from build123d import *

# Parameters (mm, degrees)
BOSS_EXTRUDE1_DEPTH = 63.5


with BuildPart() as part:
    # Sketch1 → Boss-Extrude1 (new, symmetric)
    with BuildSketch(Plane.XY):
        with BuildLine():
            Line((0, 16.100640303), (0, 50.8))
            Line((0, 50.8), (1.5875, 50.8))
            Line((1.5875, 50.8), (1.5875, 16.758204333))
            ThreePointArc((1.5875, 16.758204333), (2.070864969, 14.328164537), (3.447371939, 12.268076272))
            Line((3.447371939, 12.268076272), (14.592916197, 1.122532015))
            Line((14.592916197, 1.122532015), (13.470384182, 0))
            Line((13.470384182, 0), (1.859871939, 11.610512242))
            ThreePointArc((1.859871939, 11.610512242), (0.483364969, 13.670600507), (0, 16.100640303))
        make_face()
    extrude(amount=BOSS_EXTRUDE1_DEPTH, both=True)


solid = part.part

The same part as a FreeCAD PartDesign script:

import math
import FreeCAD as App
import Part
import Sketcher

V = App.Vector
Q = App.Units.Quantity

doc = App.newDocument("Part")
body = doc.addObject("PartDesign::Body", "Body")

# Sketch on XY plane
sketch1 = body.newObject("Sketcher::SketchObject", "Sketch")
sketch1.AttachmentSupport = (doc.getObject("XY_Plane"), [""])
sketch1.MapMode = "FlatFace"
sketch1.addGeometry(Part.LineSegment(V(0, 50.8, 0), V(0, 16.1, 0)), False)
sketch1.addGeometry(Part.ArcOfCircle(Part.Circle(V(6.4, 16.1, 0), V(0, 0, 1), 6.4), math.radians(-180), math.radians(-135)), False)
sketch1.addGeometry(Part.LineSegment(V(1.9, 11.6, 0), V(13.5, 0, 0)), False)
sketch1.addGeometry(Part.LineSegment(V(13.5, 0, 0), V(14.6, 1.1, 0)), False)
sketch1.addGeometry(Part.LineSegment(V(14.6, 1.1, 0), V(3.4, 12.3, 0)), False)
sketch1.addGeometry(Part.ArcOfCircle(Part.Circle(V(7.9, 16.8, 0), V(0, 0, 1), 6.4), math.radians(-180), math.radians(-135)), False)
sketch1.addGeometry(Part.LineSegment(V(1.6, 16.8, 0), V(1.6, 50.8, 0)), False)
sketch1.addGeometry(Part.LineSegment(V(1.6, 50.8, 0), V(0, 50.8, 0)), False)
sketch1.addConstraint(Sketcher.Constraint("Tangent", 0, 2, 1, 1))
sketch1.addConstraint(Sketcher.Constraint("Tangent", 1, 2, 2, 1))
sketch1.addConstraint(Sketcher.Constraint("Coincident", 2, 2, 3, 1))
sketch1.addConstraint(Sketcher.Constraint("Coincident", 3, 2, 4, 1))
sketch1.addConstraint(Sketcher.Constraint("Tangent", 4, 2, 5, 2))
sketch1.addConstraint(Sketcher.Constraint("Tangent", 5, 1, 6, 1))
sketch1.addConstraint(Sketcher.Constraint("Coincident", 6, 2, 7, 1))
sketch1.addConstraint(Sketcher.Constraint("Coincident", 7, 2, 0, 1))
sketch1.addConstraint(Sketcher.Constraint("Vertical", 0))
sketch1.addConstraint(Sketcher.Constraint("Vertical", 6))
sketch1.addConstraint(Sketcher.Constraint("Horizontal", 7))
sketch1.addConstraint(Sketcher.Constraint("Equal", 1, 5))
sketch1.addConstraint(Sketcher.Constraint("PointOnObject", 0, 2, -2))
sketch1.addConstraint(Sketcher.Constraint("PointOnObject", 2, 2, -1))
sketch1.addConstraint(Sketcher.Constraint("Perpendicular", 2, 3))
sketch1.addConstraint(Sketcher.Constraint("Perpendicular", 3, 4))
sketch1.addConstraint(Sketcher.Constraint("Radius", 1, Q("0.25 in")))
sketch1.addConstraint(Sketcher.Constraint("DistanceY", -1, 1, 6, 2, Q("2 in")))
sketch1.addConstraint(Sketcher.Constraint("Angle", 2, Q("-45 deg")))
sketch1.addConstraint(Sketcher.Constraint("DistanceX", 7, 2, 7, 1, Q("0.0625 in")))
sketch1.addConstraint(Sketcher.Constraint("Distance", 3, Q("0.0625 in")))
sketch1.addConstraint(Sketcher.Constraint("DistanceY", 0, 2, 0, 1, Q("34.69936 mm")))
pad1 = body.newObject("PartDesign::Pad", "Pad")
pad1.Profile = sketch1
pad1.Length = Q("5 in")
pad1.Midplane = True

doc.recompute()
